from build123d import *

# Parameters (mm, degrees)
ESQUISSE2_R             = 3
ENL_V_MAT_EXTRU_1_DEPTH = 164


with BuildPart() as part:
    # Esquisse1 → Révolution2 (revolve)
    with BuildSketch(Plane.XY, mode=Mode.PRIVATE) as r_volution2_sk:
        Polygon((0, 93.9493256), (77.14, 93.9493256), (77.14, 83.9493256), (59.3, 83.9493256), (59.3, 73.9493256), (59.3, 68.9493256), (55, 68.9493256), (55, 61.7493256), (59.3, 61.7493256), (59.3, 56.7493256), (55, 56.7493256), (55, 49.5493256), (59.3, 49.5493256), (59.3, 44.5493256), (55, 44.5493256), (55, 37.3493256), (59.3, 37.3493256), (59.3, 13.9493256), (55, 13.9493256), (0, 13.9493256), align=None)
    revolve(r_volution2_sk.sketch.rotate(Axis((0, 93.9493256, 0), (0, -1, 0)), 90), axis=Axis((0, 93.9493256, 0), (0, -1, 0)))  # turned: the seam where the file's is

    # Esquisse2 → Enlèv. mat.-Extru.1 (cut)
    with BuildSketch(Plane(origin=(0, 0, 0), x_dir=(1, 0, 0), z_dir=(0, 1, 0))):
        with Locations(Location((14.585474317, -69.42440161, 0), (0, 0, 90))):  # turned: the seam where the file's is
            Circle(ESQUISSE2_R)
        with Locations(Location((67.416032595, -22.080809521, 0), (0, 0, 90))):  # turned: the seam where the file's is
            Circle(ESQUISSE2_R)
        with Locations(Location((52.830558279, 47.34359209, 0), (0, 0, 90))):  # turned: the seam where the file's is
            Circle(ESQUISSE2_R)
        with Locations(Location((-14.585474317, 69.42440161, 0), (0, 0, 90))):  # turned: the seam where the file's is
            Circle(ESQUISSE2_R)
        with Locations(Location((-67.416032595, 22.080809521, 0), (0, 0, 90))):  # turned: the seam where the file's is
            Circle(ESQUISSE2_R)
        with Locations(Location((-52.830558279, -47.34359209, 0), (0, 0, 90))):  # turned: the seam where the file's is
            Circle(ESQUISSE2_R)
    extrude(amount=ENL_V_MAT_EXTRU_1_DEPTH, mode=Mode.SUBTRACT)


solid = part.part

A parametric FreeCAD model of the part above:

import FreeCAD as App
import Part
import Sketcher
from FreeCAD import Vector

doc = App.newDocument("Part")
params = doc.addObject("Spreadsheet::Sheet", "Params")
for row, (alias, value) in enumerate([
    ("sketch1_height", "80 mm"),
    ("sketch1_height2", "5 mm"),
    ("sketch1_height3", "15 mm"),
    ("sketch1_height4", "10 mm"),
    ("sketch1_width", "59.3 mm"),
    ("revolution_angle", "360 deg"),
    ("sketch2_diameter", "6 mm"),
    ("pocket1_length", "164 mm"),
], start=1):
    params.set(f"A{row}", alias)
    params.set(f"B{row}", "=" + value)
    params.setAlias(f"B{row}", alias)

body = doc.addObject("PartDesign::Body", "Body")

sketch1 = body.newObject("Sketcher::SketchObject", "Sketch")
sketch1.AttachmentSupport = (doc.getObject("XY_Plane"), [""])
sketch1.MapMode = "FlatFace"
sketch1.addGeometry([
    Part.LineSegment(Vector(77.1, 93.9, 0), Vector(0, 93.9, 0)),
    Part.LineSegment(Vector(0, 93.9, 0), Vector(0, 13.9, 0)),
    Part.LineSegment(Vector(0, 13.9, 0), Vector(59.3, 13.9, 0)),
    Part.LineSegment(Vector(59.3, 13.9, 0), Vector(59.3, 37.3, 0)),
    Part.LineSegment(Vector(59.3, 37.3, 0), Vector(55, 37.3, 0)),
    Part.LineSegment(Vector(55, 37.3, 0), Vector(55, 44.5, 0)),
    Part.LineSegment(Vector(55, 44.5, 0), Vector(59.3, 44.5, 0)),
    Part.LineSegment(Vector(59.3, 44.5, 0), Vector(59.3, 49.5, 0)),
    Part.LineSegment(Vector(59.3, 49.5, 0), Vector(55, 49.5, 0)),
    Part.LineSegment(Vector(55, 49.5, 0), Vector(55, 56.7, 0)),
    Part.LineSegment(Vector(55, 56.7, 0), Vector(59.3, 56.7, 0)),
    Part.LineSegment(Vector(59.3, 56.7, 0), Vector(59.3, 61.7, 0)),
    Part.LineSegment(Vector(59.3, 61.7, 0), Vector(55, 61.7, 0)),
    Part.LineSegment(Vector(55, 61.7, 0), Vector(55, 68.9, 0)),
    Part.LineSegment(Vector(55, 68.9, 0), Vector(59.3, 68.9, 0)),
    Part.LineSegment(Vector(59.3, 68.9, 0), Vector(59.3, 83.9, 0)),
    Part.LineSegment(Vector(59.3, 83.9, 0), Vector(77.1, 83.9, 0)),
    Part.LineSegment(Vector(77.1, 83.9, 0), Vector(77.1, 93.9, 0)),
], False)
sketch1.addConstraint([
    Sketcher.Constraint("Coincident", 0, 2, 1, 1),
    Sketcher.Constraint("Coincident", 1, 2, 2, 1),
    Sketcher.Constraint("Coincident", 2, 2, 3, 1),
    Sketcher.Constraint("Coincident", 3, 2, 4, 1),
    Sketcher.Constraint("Coincident", 4, 2, 5, 1),
    Sketcher.Constraint("Coincident", 5, 2, 6, 1),
    Sketcher.Constraint("Coincident", 6, 2, 7, 1),
    Sketcher.Constraint("Coincident", 7, 2, 8, 1),
    Sketcher.Constraint("Coincident", 8, 2, 9, 1),
    Sketcher.Constraint("Coincident", 9, 2, 10, 1),
    Sketcher.Constraint("Coincident", 10, 2, 11, 1),
    Sketcher.Constraint("Coincident", 11, 2, 12, 1),
    Sketcher.Constraint("Coincident", 12, 2, 13, 1),
    Sketcher.Constraint("Coincident", 13, 2, 14, 1),
    Sketcher.Constraint("Coincident", 14, 2, 15, 1),
    Sketcher.Constraint("Coincident", 15, 2, 16, 1),
    Sketcher.Constraint("Coincident", 16, 2, 17, 1),
    Sketcher.Constraint("Coincident", 17, 2, 0, 1),
    Sketcher.Constraint("Horizontal", 0),
    Sketcher.Constraint("Vertical", 1),
    Sketcher.Constraint("Horizontal", 2),
    Sketcher.Constraint("Vertical", 3),
    Sketcher.Constraint("Horizontal", 4),
    Sketcher.Constraint("Vertical", 5),
    Sketcher.Constraint("Horizontal", 6),
    Sketcher.Constraint("Vertical", 7),
    Sketcher.Constraint("Horizontal", 8),
    Sketcher.Constraint("Vertical", 9),
    Sketcher.Constraint("Horizontal", 10),
    Sketcher.Constraint("Vertical", 11),
    Sketcher.Constraint("Horizontal", 12),
    Sketcher.Constraint("Vertical", 13),
    Sketcher.Constraint("Horizontal", 14),
    Sketcher.Constraint("Vertical", 15),
    Sketcher.Constraint("Horizontal", 16),
    Sketcher.Constraint("Vertical", 17),
    Sketcher.Constraint("PointOnObject", 0, 2, -2),
    Sketcher.Constraint("Vertical", 3, 2, 6, 2),
    Sketcher.Constraint("Vertical", 5, 2, 8, 2),
    Sketcher.Constraint("Vertical", 7, 2, 10, 2),
    Sketcher.Constraint("Vertical", 9, 2, 12, 2),
    Sketcher.Constraint("Vertical", 11, 2, 14, 2),
    Sketcher.Constraint("Equal", 5, 9),
    Sketcher.Constraint("Equal", 7, 11),
    Sketcher.Constraint("Equal", 9, 13),
    Sketcher.Constraint("DistanceY", 1, 2, 1, 1, 80.0),
    Sketcher.Constraint("DistanceY", 7, 1, 7, 2, 5.0),
    Sketcher.Constraint("DistanceY", 15, 1, 15, 2, 15.0),
    Sketcher.Constraint("DistanceY", 17, 1, 17, 2, 10.0),
    Sketcher.Constraint("DistanceX", 2, 1, 2, 2, 59.3),
    Sketcher.Constraint("DistanceX", 4, 2, 4, 1, 4.3),
    Sketcher.Constraint("DistanceY", 3, 1, 3, 2, 23.4),
    Sketcher.Constraint("DistanceX", 0, 2, 0, 1, 77.14),
    Sketcher.Constraint("DistanceY", -1, 1, 0, 2, 93.949326),
])
sketch1.setExpression("Constraints[45]", "Params.sketch1_height")
sketch1.setExpression("Constraints[46]", "Params.sketch1_height2")
sketch1.setExpression("Constraints[47]", "Params.sketch1_height3")
sketch1.setExpression("Constraints[48]", "Params.sketch1_height4")
sketch1.setExpression("Constraints[49]", "Params.sketch1_width")
revolution = body.newObject("PartDesign::Revolution", "Revolution")
revolution.Profile = sketch1
revolution.ReferenceAxis = (sketch1, ["V_Axis"])
revolution.setExpression("Angle", "Params.revolution_angle")

sketch2 = body.newObject("Sketcher::SketchObject", "Sketch001")
sketch2.AttachmentSupport = (doc.getObject("XZ_Plane"), [""])
sketch2.MapMode = "FlatFace"
sketch2.addGeometry([
    Part.Circle(Vector(14.6, 69.4, 0), Vector(0, 0, 1), 3),
    Part.Circle(Vector(67.4, 22.1, 0), Vector(0, 0, 1), 3),
    Part.Circle(Vector(52.8, -47.3, 0), Vector(0, 0, 1), 3),
    Part.Circle(Vector(-14.6, -69.4, 0), Vector(0, 0, 1), 3),
    Part.Circle(Vector(-67.4, -22.1, 0), Vector(0, 0, 1), 3),
    Part.Circle(Vector(-52.8, 47.3, 0), Vector(0, 0, 1), 3),
], False)
sketch2.addConstraint([
    Sketcher.Constraint("Equal", 0, 1),
    Sketcher.Constraint("Equal", 1, 2),
    Sketcher.Constraint("Equal", 2, 3),
    Sketcher.Constraint("Equal", 3, 4),
    Sketcher.Constraint("Equal", 4, 5),
    Sketcher.Constraint("Symmetric", 0, 3, 3, 3, -1, 1),
    Sketcher.Constraint("Symmetric", 1, 3, 4, 3, -1, 1),
    Sketcher.Constraint("Symmetric", 2, 3, 5, 3, -1, 1),
    Sketcher.Constraint("Diameter", 0, 6.0),
    Sketcher.Constraint("DistanceY", -1, 1, 0, 3, 69.424402),
    Sketcher.Constraint("DistanceY", 2, 3, 1, 3, 69.424402),
    Sketcher.Constraint("DistanceY", -1, 1, 1, 3, 22.08081),
    Sketcher.Constraint("DistanceX", -1, 1, 2, 3, 52.830558),
    Sketcher.Constraint("DistanceX", 0, 3, 1, 3, 52.830558),
    Sketcher.Constraint("DistanceX", 3, 3, 0, 3, 29.170949),
])
sketch2.setExpression("Constraints[8]", "Params.sketch2_diameter")
pocket1 = body.newObject("PartDesign::Pocket", "Pocket")
pocket1.Profile = sketch2
pocket1.setExpression("Length", "Params.pocket1_length")

doc.recompute()
